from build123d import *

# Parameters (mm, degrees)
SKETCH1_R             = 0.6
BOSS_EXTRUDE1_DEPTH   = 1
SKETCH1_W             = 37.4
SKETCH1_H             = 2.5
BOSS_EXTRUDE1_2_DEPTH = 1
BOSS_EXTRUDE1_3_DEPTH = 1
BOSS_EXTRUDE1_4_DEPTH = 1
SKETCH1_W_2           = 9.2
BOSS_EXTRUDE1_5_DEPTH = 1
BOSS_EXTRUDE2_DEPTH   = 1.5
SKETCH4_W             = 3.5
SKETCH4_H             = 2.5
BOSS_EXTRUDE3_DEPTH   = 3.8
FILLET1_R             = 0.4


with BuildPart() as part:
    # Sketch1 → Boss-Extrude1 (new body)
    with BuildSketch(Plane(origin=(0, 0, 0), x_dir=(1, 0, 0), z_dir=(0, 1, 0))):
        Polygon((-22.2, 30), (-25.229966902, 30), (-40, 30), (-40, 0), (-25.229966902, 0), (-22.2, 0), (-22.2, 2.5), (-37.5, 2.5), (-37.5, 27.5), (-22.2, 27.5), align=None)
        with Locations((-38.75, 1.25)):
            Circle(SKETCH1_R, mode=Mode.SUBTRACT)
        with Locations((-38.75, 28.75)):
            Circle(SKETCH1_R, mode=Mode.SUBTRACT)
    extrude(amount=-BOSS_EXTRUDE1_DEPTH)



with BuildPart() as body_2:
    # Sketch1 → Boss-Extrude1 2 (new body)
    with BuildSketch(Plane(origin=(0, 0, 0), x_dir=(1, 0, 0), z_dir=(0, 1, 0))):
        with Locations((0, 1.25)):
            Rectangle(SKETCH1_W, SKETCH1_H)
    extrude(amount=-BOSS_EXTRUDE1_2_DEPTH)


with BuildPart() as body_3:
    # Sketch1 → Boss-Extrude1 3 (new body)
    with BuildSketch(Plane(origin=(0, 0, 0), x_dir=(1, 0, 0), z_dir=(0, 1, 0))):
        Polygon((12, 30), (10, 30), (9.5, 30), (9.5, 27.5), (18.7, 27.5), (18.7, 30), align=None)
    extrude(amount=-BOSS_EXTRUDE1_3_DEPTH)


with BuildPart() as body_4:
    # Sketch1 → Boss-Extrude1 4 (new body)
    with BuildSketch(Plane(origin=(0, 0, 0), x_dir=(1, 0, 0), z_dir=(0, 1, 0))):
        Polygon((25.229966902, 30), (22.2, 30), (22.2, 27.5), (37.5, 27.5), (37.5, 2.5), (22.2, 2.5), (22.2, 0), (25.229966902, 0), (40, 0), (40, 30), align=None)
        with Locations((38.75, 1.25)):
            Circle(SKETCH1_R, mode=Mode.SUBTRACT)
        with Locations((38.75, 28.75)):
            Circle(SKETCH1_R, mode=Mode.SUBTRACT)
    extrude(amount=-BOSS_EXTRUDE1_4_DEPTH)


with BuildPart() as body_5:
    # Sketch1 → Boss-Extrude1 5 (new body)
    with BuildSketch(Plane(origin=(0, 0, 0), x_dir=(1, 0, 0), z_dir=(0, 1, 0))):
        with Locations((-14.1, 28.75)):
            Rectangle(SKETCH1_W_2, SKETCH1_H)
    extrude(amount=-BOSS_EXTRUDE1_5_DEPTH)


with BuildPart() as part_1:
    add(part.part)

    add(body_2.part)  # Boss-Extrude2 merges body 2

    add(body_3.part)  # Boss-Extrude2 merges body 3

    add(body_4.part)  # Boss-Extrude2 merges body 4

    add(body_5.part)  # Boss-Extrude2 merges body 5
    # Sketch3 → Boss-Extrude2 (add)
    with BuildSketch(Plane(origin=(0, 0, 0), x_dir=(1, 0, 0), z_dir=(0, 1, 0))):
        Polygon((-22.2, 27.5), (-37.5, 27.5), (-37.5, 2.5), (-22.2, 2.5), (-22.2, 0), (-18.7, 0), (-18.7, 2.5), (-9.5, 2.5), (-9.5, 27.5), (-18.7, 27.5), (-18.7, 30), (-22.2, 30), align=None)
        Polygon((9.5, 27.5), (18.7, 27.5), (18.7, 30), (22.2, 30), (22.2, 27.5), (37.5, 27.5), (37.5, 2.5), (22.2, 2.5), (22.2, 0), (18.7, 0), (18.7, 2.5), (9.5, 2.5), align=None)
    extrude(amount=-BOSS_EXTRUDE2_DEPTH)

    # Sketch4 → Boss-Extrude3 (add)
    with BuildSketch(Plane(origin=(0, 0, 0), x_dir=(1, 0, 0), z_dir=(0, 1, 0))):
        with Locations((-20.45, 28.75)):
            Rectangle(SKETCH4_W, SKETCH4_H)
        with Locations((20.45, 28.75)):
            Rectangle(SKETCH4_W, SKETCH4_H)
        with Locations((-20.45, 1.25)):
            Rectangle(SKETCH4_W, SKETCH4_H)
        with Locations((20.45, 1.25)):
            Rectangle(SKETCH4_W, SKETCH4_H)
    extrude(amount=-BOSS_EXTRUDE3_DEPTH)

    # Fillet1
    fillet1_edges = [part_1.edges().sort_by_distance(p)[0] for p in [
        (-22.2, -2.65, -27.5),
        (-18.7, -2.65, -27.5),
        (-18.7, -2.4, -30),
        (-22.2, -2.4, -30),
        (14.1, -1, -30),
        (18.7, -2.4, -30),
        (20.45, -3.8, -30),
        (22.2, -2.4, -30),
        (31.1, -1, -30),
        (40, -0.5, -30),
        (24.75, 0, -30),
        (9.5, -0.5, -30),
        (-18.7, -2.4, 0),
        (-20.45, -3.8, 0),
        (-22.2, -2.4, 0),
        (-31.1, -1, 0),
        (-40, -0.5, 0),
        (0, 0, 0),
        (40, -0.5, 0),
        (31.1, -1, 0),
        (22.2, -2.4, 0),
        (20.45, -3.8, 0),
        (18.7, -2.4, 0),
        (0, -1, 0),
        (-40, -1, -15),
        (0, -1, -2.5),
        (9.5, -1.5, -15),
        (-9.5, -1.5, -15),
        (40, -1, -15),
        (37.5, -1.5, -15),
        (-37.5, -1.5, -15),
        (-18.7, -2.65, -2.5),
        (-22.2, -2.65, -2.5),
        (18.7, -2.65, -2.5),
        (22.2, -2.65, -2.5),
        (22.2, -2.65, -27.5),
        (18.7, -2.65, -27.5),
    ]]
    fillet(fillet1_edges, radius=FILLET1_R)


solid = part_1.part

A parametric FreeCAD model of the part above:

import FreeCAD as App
import Part
import Sketcher

V = App.Vector


def edges_at(feature, points):
    """Names of the edges that pass closest to the given points."""
    edges = feature.Shape.Edges
    near = lambda p: min(range(len(edges)), key=lambda i: edges[i].distToShape(Part.Vertex(*p))[0])
    return sorted({f"Edge{near(p) + 1}" for p in points})


def add_polygon(sketch, points):
    """Adds a closed chain of lines whose ends are joined by coincident constraints."""
    first, n = sketch.GeometryCount, len(points)
    for a, b in zip(points, points[1:] + points[:1]):
        sketch.addGeometry(Part.LineSegment(App.Vector(*a, 0), App.Vector(*b, 0)), False)
    for i in range(n):
        sketch.addConstraint(Sketcher.Constraint("Coincident", first + i, 2, first + (i + 1) % n, 1))

doc = App.newDocument("Part")
params = doc.addObject("Spreadsheet::Sheet", "Params")
for row, (alias, value) in enumerate([
    ("sketch1_diameter", "1.2 mm"),
    ("sketch1_height", "30 mm"),
    ("sketch1_height2", "25 mm"),
    ("sketch1_width", "17.8 mm"),
    ("sketch1_width2", "15.3 mm"),
    ("pad1_length", "1 mm"),
    ("sketch2_width", "37.4 mm"),
    ("sketch2_height", "2.5 mm"),
    ("pad2_length", "1 mm"),
    ("sketch3_width", "9.2 mm"),
    ("sketch3_height", "2.5 mm"),
    ("pad3_length", "1 mm"),
    ("sketch4_diameter", "1.2 mm"),
    ("sketch4_height", "25 mm"),
    ("sketch4_height2", "30 mm"),
    ("sketch4_width", "15.3 mm"),
    ("sketch4_width2", "17.8 mm"),
    ("pad4_length", "1 mm"),
    ("sketch5_width", "9.2 mm"),
    ("sketch5_height", "2.5 mm"),
    ("pad5_length", "1 mm"),
    ("sketch6_height", "25 mm"),
    ("sketch6_width", "15.3 mm"),
    ("sketch6_width2", "3.5 mm"),
    ("sketch6_width3", "9.2 mm"),
    ("sketch6_height2", "2.5 mm"),
    ("pad6_length", "1.5 mm"),
    ("sketch7_width", "3.5 mm"),
    ("sketch7_height", "2.5 mm"),
    ("pad7_length", "3.8 mm"),
    ("fillet_radius", "0.4 mm"),
], start=1):
    params.set(f"A{row}", alias)
    params.set(f"B{row}", "=" + value)
    params.setAlias(f"B{row}", alias)

body = doc.addObject("PartDesign::Body", "Body")

sketch1 = doc.addObject("Sketcher::SketchObject", "Sketch")
body.addObject(sketch1)
sketch1.AttachmentSupport = (doc.XZ_Plane, [""])
sketch1.MapMode = "FlatFace"
add_polygon(sketch1, [(-22.2, -30), (-40, -30), (-40, 0), (-22.2, 0), (-22.2, -2.5), (-37.5, -2.5), (-37.5, -27.5), (-22.2, -27.5)])
sketch1.addGeometry(Part.Circle(V(-38.8, -1.2, 0), V(0, 0, 1), 0.6), False)
sketch1.addGeometry(Part.Circle(V(-38.8, -28.8, 0), V(0, 0, 1), 0.6), False)
sketch1.addConstraint([
    Sketcher.Constraint("Horizontal", 0),
    Sketcher.Constraint("Vertical", 1),
    Sketcher.Constraint("Horizontal", 2),
    Sketcher.Constraint("Vertical", 3),
    Sketcher.Constraint("Horizontal", 4),
    Sketcher.Constraint("Vertical", 5),
    Sketcher.Constraint("Horizontal", 6),
    Sketcher.Constraint("Vertical", 7),
    Sketcher.Constraint("Equal", 8, 9),
    Sketcher.Constraint("PointOnObject", 1, 2, -1),
    Sketcher.Constraint("Vertical", 8, 3, 9, 3),
    Sketcher.Constraint("Vertical", 3, 2, 6, 2),
    Sketcher.Constraint("Equal", 3, 7),
    Sketcher.Constraint("Diameter", 8, 1.2),
    Sketcher.Constraint("DistanceY", 1, 1, 1, 2, 30.0),
    Sketcher.Constraint("DistanceY", 5, 2, 5, 1, 25.0),
    Sketcher.Constraint("DistanceX", 0, 2, 0, 1, 17.8),
    Sketcher.Constraint("DistanceX", 4, 2, 4, 1, 15.3),
    Sketcher.Constraint("DistanceX", 0, 2, -1, 1, 40.0),
    Sketcher.Constraint("DistanceY", 9, 3, 8, 3, 27.5),
    Sketcher.Constraint("DistanceX", 8, 3, -1, 1, 38.75),
    Sketcher.Constraint("DistanceY", 8, 3, -1, 1, 1.25),
])
sketch1.setExpression("Constraints[21]", "Params.sketch1_diameter")
sketch1.setExpression("Constraints[22]", "Params.sketch1_height")
sketch1.setExpression("Constraints[23]", "Params.sketch1_height2")
sketch1.setExpression("Constraints[24]", "Params.sketch1_width")
sketch1.setExpression("Constraints[25]", "Params.sketch1_width2")
pad1 = doc.addObject("PartDesign::Pad", "Pad")
body.addObject(pad1)
pad1.Profile = sketch1
pad1.setExpression("Length", "Params.pad1_length")
body2 = doc.addObject("PartDesign::Body", "Body001")

sketch2 = doc.addObject("Sketcher::SketchObject", "Sketch001")
body2.addObject(sketch2)
sketch2.AttachmentSupport = (doc.getObject("XZ_Plane001"), [""])
sketch2.MapMode = "FlatFace"
add_polygon(sketch2, [(-18.7, -2.5), (-18.7, 0), (18.7, 0), (18.7, -2.5)])
sketch2.addConstraint([
    Sketcher.Constraint("Vertical", 0),
    Sketcher.Constraint("Horizontal", 1),
    Sketcher.Constraint("Vertical", 2),
    Sketcher.Constraint("Horizontal", 3),
    Sketcher.Constraint("Symmetric", 0, 2, 1, 2, -1, 1),
    Sketcher.Constraint("DistanceX", 1, 1, 1, 2, 37.4),
    Sketcher.Constraint("DistanceY", 0, 1, 0, 2, 2.5),
])
sketch2.setExpression("Constraints[9]", "Params.sketch2_width")
sketch2.setExpression("Constraints[10]", "Params.sketch2_height")
pad2 = doc.addObject("PartDesign::Pad", "Pad001")
body2.addObject(pad2)
pad2.Profile = sketch2
pad2.setExpression("Length", "Params.pad2_length")
body3 = doc.addObject("PartDesign::Body", "Body002")

sketch3 = doc.addObject("Sketcher::SketchObject", "Sketch002")
body3.addObject(sketch3)
sketch3.AttachmentSupport = (doc.getObject("XZ_Plane002"), [""])
sketch3.MapMode = "FlatFace"
add_polygon(sketch3, [(9.5, -30), (9.5, -27.5), (18.7, -27.5), (18.7, -30)])
sketch3.addConstraint([
    Sketcher.Constraint("Vertical", 0),
    Sketcher.Constraint("Horizontal", 1),
    Sketcher.Constraint("Vertical", 2),
    Sketcher.Constraint("Horizontal", 3),
    Sketcher.Constraint("DistanceX", 1, 1, 1, 2, 9.2),
    Sketcher.Constraint("DistanceY", 0, 1, 0, 2, 2.5),
    Sketcher.Constraint("DistanceY", 2, 2, -1, 1, 30.0),
    Sketcher.Constraint("DistanceX", -1, 1, 0, 2, 9.5),
])
sketch3.setExpression("Constraints[8]", "Params.sketch3_width")
sketch3.setExpression("Constraints[9]", "Params.sketch3_height")
pad3 = doc.addObject("PartDesign::Pad", "Pad002")
body3.addObject(pad3)
pad3.Profile = sketch3
pad3.setExpression("Length", "Params.pad3_length")
body4 = doc.addObject("PartDesign::Body", "Body003")

sketch4 = doc.addObject("Sketcher::SketchObject", "Sketch003")
body4.addObject(sketch4)
sketch4.AttachmentSupport = (doc.getObject("XZ_Plane003"), [""])
sketch4.MapMode = "FlatFace"
add_polygon(sketch4, [(22.2, -30), (22.2, -27.5), (37.5, -27.5), (37.5, -2.5), (22.2, -2.5), (22.2, 0), (40, 0), (40, -30)])
sketch4.addGeometry(Part.Circle(V(38.8, -1.2, 0), V(0, 0, 1), 0.6), False)
sketch4.addGeometry(Part.Circle(V(38.8, -28.8, 0), V(0, 0, 1), 0.6), False)
sketch4.addConstraint([
    Sketcher.Constraint("Vertical", 0),
    Sketcher.Constraint("Horizontal", 1),
    Sketcher.Constraint("Vertical", 2),
    Sketcher.Constraint("Horizontal", 3),
    Sketcher.Constraint("Vertical", 4),
    Sketcher.Constraint("Horizontal", 5),
    Sketcher.Constraint("Vertical", 6),
    Sketcher.Constraint("Horizontal", 7),
    Sketcher.Constraint("Equal", 8, 9),
    Sketcher.Constraint("PointOnObject", 4, 2, -1),
    Sketcher.Constraint("Vertical", 8, 3, 9, 3),
    Sketcher.Constraint("Vertical", 0, 2, 3, 2),
    Sketcher.Constraint("Equal", 0, 4),
    Sketcher.Constraint("Diameter", 8, 1.2),
    Sketcher.Constraint("DistanceY", 2, 1, 2, 2, 25.0),
    Sketcher.Constraint("DistanceY", 6, 2, 6, 1, 30.0),
    Sketcher.Constraint("DistanceX", 1, 1, 1, 2, 15.3),
    Sketcher.Constraint("DistanceX", 5, 1, 5, 2, 17.8),
    Sketcher.Constraint("DistanceX", -1, 1, 5, 2, 40.0),
    Sketcher.Constraint("DistanceY", 9, 3, 8, 3, 27.5),
    Sketcher.Constraint("DistanceX", -1, 1, 8, 3, 38.75),
    Sketcher.Constraint("DistanceY", 8, 3, -1, 1, 1.25),
])
sketch4.setExpression("Constraints[21]", "Params.sketch4_diameter")
sketch4.setExpression("Constraints[22]", "Params.sketch4_height")
sketch4.setExpression("Constraints[23]", "Params.sketch4_height2")
sketch4.setExpression("Constraints[24]", "Params.sketch4_width")
sketch4.setExpression("Constraints[25]", "Params.sketch4_width2")
pad4 = doc.addObject("PartDesign::Pad", "Pad003")
body4.addObject(pad4)
pad4.Profile = sketch4
pad4.setExpression("Length", "Params.pad4_length")
body5 = doc.addObject("PartDesign::Body", "Body004")

sketch5 = doc.addObject("Sketcher::SketchObject", "Sketch004")
body5.addObject(sketch5)
sketch5.AttachmentSupport = (doc.getObject("XZ_Plane004"), [""])
sketch5.MapMode = "FlatFace"
add_polygon(sketch5, [(-18.7, -30), (-18.7, -27.5), (-9.5, -27.5), (-9.5, -30)])
sketch5.addConstraint([
    Sketcher.Constraint("Vertical", 0),
    Sketcher.Constraint("Horizontal", 1),
    Sketcher.Constraint("Vertical", 2),
    Sketcher.Constraint("Horizontal", 3),
    Sketcher.Constraint("DistanceX", 1, 1, 1, 2, 9.2),
    Sketcher.Constraint("DistanceY", 0, 1, 0, 2, 2.5),
    Sketcher.Constraint("DistanceY", 2, 2, -1, 1, 30.0),
    Sketcher.Constraint("DistanceX", 0, 2, -1, 1, 18.7),
])
sketch5.setExpression("Constraints[8]", "Params.sketch5_width")
sketch5.setExpression("Constraints[9]", "Params.sketch5_height")
pad5 = doc.addObject("PartDesign::Pad", "Pad004")
body5.addObject(pad5)
pad5.Profile = sketch5
pad5.setExpression("Length", "Params.pad5_length")
body.AllowCompound = True
doc.recompute()

boolean = doc.addObject("PartDesign::Boolean", "Boolean")
body.addObject(boolean)
boolean.Type = "Fuse"
boolean.addObjects([body2])
doc.recompute()

boolean2 = doc.addObject("PartDesign::Boolean", "Boolean001")
body.addObject(boolean2)
boolean2.Type = "Fuse"
boolean2.addObjects([body3])
doc.recompute()

boolean3 = doc.addObject("PartDesign::Boolean", "Boolean002")
body.addObject(boolean3)
boolean3.Type = "Fuse"
boolean3.addObjects([body4])
doc.recompute()

boolean4 = doc.addObject("PartDesign::Boolean", "Boolean003")
body.addObject(boolean4)
boolean4.Type = "Fuse"
boolean4.addObjects([body5])

sketch6 = doc.addObject("Sketcher::SketchObject", "Sketch005")
body.addObject(sketch6)
sketch6.AttachmentSupport = (doc.XZ_Plane, [""])
sketch6.MapMode = "FlatFace"
add_polygon(sketch6, [(-22.2, -27.5), (-37.5, -27.5), (-37.5, -2.5), (-22.2, -2.5), (-22.2, 0), (-18.7, 0), (-18.7, -2.5), (-9.5, -2.5), (-9.5, -27.5), (-18.7, -27.5), (-18.7, -30), (-22.2, -30)])
add_polygon(sketch6, [(18.7, -27.5), (9.5, -27.5), (9.5, -2.5), (18.7, -2.5), (18.7, 0), (22.2, 0), (22.2, -2.5), (37.5, -2.5), (37.5, -27.5), (22.2, -27.5), (22.2, -30), (18.7, -30)])
sketch6.addConstraint([
    Sketcher.Constraint("Horizontal", 0),
    Sketcher.Constraint("Vertical", 1),
    Sketcher.Constraint("Horizontal", 2),
    Sketcher.Constraint("Vertical", 3),
    Sketcher.Constraint("Horizontal", 4),
    Sketcher.Constraint("Vertical", 5),
    Sketcher.Constraint("Horizontal", 6),
    Sketcher.Constraint("Vertical", 7),
    Sketcher.Constraint("Horizontal", 8),
    Sketcher.Constraint("Vertical", 9),
    Sketcher.Constraint("Horizontal", 10),
    Sketcher.Constraint("Vertical", 11),
    Sketcher.Constraint("Horizontal", 12),
    Sketcher.Constraint("Vertical", 13),
    Sketcher.Constraint("Horizontal", 14),
    Sketcher.Constraint("Vertical", 15),
    Sketcher.Constraint("Horizontal", 16),
    Sketcher.Constraint("Vertical", 17),
    Sketcher.Constraint("Horizontal", 18),
    Sketcher.Constraint("Vertical", 19),
    Sketcher.Constraint("Horizontal", 20),
    Sketcher.Constraint("Vertical", 21),
    Sketcher.Constraint("Horizontal", 22),
    Sketcher.Constraint("Vertical", 23),
    Sketcher.Constraint("Symmetric", 4, 2, 15, 2, -1, 1),
    Sketcher.Constraint("Symmetric", 7, 2, 12, 2, -2),
    Sketcher.Constraint("Symmetric", 3, 2, 16, 2, -2),
    Sketcher.Constraint("Symmetric", 1, 2, 18, 2, -2),
    Sketcher.Constraint("Symmetric", 11, 2, 20, 2, -2),
    Sketcher.Constraint("Symmetric", 9, 2, 22, 2, -2),
    Sketcher.Constraint("Horizontal", 2, 2, 5, 2),
    Sketcher.Constraint("Horizontal", 0, 2, 7, 2),
    Sketcher.Constraint("Horizontal", 6, 2, 13, 2),
    Sketcher.Constraint("Vertical", 5, 2, 8, 2),
    Sketcher.Constraint("Vertical", 3, 2, 10, 2),
    Sketcher.Constraint("Equal", 5, 9),
    Sketcher.Constraint("DistanceY", 1, 1, 1, 2, 25.0),
    Sketcher.Constraint("DistanceX", 0, 2, 0, 1, 15.3),
    Sketcher.Constraint("DistanceX", 4, 1, 4, 2, 3.5),
    Sketcher.Constraint("DistanceX", 6, 1, 6, 2, 9.2),
    Sketcher.Constraint("DistanceY", 3, 1, 3, 2, 2.5),
    Sketcher.Constraint("DistanceX", 7, 2, 12, 2, 19.0),
])
sketch6.setExpression("Constraints[60]", "Params.sketch6_height")
sketch6.setExpression("Constraints[61]", "Params.sketch6_width")
sketch6.setExpression("Constraints[62]", "Params.sketch6_width2")
sketch6.setExpression("Constraints[63]", "Params.sketch6_width3")
sketch6.setExpression("Constraints[64]", "Params.sketch6_height2")
pad6 = doc.addObject("PartDesign::Pad", "Pad005")
body.addObject(pad6)
pad6.Profile = sketch6
pad6.setExpression("Length", "Params.pad6_length")

sketch7 = doc.addObject("Sketcher::SketchObject", "Sketch006")
body.addObject(sketch7)
sketch7.AttachmentSupport = (doc.XZ_Plane, [""])
sketch7.MapMode = "FlatFace"
add_polygon(sketch7, [(-22.2, -30), (-22.2, -27.5), (-18.7, -27.5), (-18.7, -30)])
add_polygon(sketch7, [(18.7, -30), (18.7, -27.5), (22.2, -27.5), (22.2, -30)])
add_polygon(sketch7, [(-22.2, -2.5), (-22.2, 0), (-18.7, 0), (-18.7, -2.5)])
add_polygon(sketch7, [(18.7, -2.5), (18.7, 0), (22.2, 0), (22.2, -2.5)])
sketch7.addConstraint([
    Sketcher.Constraint("Vertical", 0),
    Sketcher.Constraint("Horizontal", 1),
    Sketcher.Constraint("Vertical", 2),
    Sketcher.Constraint("Horizontal", 3),
    Sketcher.Constraint("Vertical", 4),
    Sketcher.Constraint("Horizontal", 5),
    Sketcher.Constraint("Vertical", 6),
    Sketcher.Constraint("Horizontal", 7),
    Sketcher.Constraint("Vertical", 8),
    Sketcher.Constraint("Horizontal", 9),
    Sketcher.Constraint("Vertical", 10),
    Sketcher.Constraint("Horizontal", 11),
    Sketcher.Constraint("Vertical", 12),
    Sketcher.Constraint("Horizontal", 13),
    Sketcher.Constraint("Vertical", 14),
    Sketcher.Constraint("Horizontal", 15),
    Sketcher.Constraint("Symmetric", 9, 2, 12, 2, -1, 1),
    Sketcher.Constraint("Symmetric", 1, 2, 4, 2, -2),
    Sketcher.Constraint("Symmetric", 3, 2, 6, 2, -2),
    Sketcher.Constraint("Symmetric", 8, 2, 13, 2, -2),
    Sketcher.Constraint("Horizontal", 11, 2, 14, 2),
    Sketcher.Constraint("Vertical", 3, 2, 8, 2),
    Sketcher.Constraint("Vertical", 2, 2, 9, 2),
    Sketcher.Constraint("Equal", 6, 8),
    Sketcher.Constraint("DistanceX", 1, 1, 1, 2, 3.5),
    Sketcher.Constraint("DistanceY", 0, 1, 0, 2, 2.5),
    Sketcher.Constraint("DistanceY", 2, 2, -1, 1, 30.0),
    Sketcher.Constraint("DistanceX", 0, 2, -1, 1, 22.2),
])
sketch7.setExpression("Constraints[40]", "Params.sketch7_width")
sketch7.setExpression("Constraints[41]", "Params.sketch7_height")
pad7 = doc.addObject("PartDesign::Pad", "Pad006")
body.addObject(pad7)
pad7.Profile = sketch7
pad7.setExpression("Length", "Params.pad7_length")
doc.recompute()

fillet = doc.addObject("PartDesign::Fillet", "Fillet")
body.addObject(fillet)
fillet.Base = (pad7, edges_at(pad7, [
    (-22.2, -2.65, -27.5),
    (-18.7, -2.65, -27.5),
    (-18.7, -2.4, -30),
    (-22.2, -2.4, -30),
    (14.1, -1, -30),
    (18.7, -2.4, -30),
    (20.45, -3.8, -30),
    (22.2, -2.4, -30),
    (31.1, -1, -30),
    (40, -0.5, -30),
    (24.75, 0, -30),
    (9.5, -0.5, -30),
    (-18.7, -2.4, 0),
    (-20.45, -3.8, 0),
    (-22.2, -2.4, 0),
    (-31.1, -1, 0),
    (-40, -0.5, 0),
    (0, 0, 0),
    (40, -0.5, 0),
    (31.1, -1, 0),
    (22.2, -2.4, 0),
    (20.45, -3.8, 0),
    (18.7, -2.4, 0),
    (0, -1, 0),
    (-40, -1, -15),
    (0, -1, -2.5),
    (9.5, -1.5, -15),
    (-9.5, -1.5, -15),
    (40, -1, -15),
    (37.5, -1.5, -15),
    (-37.5, -1.5, -15),
    (-18.7, -2.65, -2.5),
    (-22.2, -2.65, -2.5),
    (18.7, -2.65, -2.5),
    (22.2, -2.65, -2.5),
    (22.2, -2.65, -27.5),
    (18.7, -2.65, -27.5),
]))
fillet.setExpression("Radius", "Params.fillet_radius")

doc.recompute()
